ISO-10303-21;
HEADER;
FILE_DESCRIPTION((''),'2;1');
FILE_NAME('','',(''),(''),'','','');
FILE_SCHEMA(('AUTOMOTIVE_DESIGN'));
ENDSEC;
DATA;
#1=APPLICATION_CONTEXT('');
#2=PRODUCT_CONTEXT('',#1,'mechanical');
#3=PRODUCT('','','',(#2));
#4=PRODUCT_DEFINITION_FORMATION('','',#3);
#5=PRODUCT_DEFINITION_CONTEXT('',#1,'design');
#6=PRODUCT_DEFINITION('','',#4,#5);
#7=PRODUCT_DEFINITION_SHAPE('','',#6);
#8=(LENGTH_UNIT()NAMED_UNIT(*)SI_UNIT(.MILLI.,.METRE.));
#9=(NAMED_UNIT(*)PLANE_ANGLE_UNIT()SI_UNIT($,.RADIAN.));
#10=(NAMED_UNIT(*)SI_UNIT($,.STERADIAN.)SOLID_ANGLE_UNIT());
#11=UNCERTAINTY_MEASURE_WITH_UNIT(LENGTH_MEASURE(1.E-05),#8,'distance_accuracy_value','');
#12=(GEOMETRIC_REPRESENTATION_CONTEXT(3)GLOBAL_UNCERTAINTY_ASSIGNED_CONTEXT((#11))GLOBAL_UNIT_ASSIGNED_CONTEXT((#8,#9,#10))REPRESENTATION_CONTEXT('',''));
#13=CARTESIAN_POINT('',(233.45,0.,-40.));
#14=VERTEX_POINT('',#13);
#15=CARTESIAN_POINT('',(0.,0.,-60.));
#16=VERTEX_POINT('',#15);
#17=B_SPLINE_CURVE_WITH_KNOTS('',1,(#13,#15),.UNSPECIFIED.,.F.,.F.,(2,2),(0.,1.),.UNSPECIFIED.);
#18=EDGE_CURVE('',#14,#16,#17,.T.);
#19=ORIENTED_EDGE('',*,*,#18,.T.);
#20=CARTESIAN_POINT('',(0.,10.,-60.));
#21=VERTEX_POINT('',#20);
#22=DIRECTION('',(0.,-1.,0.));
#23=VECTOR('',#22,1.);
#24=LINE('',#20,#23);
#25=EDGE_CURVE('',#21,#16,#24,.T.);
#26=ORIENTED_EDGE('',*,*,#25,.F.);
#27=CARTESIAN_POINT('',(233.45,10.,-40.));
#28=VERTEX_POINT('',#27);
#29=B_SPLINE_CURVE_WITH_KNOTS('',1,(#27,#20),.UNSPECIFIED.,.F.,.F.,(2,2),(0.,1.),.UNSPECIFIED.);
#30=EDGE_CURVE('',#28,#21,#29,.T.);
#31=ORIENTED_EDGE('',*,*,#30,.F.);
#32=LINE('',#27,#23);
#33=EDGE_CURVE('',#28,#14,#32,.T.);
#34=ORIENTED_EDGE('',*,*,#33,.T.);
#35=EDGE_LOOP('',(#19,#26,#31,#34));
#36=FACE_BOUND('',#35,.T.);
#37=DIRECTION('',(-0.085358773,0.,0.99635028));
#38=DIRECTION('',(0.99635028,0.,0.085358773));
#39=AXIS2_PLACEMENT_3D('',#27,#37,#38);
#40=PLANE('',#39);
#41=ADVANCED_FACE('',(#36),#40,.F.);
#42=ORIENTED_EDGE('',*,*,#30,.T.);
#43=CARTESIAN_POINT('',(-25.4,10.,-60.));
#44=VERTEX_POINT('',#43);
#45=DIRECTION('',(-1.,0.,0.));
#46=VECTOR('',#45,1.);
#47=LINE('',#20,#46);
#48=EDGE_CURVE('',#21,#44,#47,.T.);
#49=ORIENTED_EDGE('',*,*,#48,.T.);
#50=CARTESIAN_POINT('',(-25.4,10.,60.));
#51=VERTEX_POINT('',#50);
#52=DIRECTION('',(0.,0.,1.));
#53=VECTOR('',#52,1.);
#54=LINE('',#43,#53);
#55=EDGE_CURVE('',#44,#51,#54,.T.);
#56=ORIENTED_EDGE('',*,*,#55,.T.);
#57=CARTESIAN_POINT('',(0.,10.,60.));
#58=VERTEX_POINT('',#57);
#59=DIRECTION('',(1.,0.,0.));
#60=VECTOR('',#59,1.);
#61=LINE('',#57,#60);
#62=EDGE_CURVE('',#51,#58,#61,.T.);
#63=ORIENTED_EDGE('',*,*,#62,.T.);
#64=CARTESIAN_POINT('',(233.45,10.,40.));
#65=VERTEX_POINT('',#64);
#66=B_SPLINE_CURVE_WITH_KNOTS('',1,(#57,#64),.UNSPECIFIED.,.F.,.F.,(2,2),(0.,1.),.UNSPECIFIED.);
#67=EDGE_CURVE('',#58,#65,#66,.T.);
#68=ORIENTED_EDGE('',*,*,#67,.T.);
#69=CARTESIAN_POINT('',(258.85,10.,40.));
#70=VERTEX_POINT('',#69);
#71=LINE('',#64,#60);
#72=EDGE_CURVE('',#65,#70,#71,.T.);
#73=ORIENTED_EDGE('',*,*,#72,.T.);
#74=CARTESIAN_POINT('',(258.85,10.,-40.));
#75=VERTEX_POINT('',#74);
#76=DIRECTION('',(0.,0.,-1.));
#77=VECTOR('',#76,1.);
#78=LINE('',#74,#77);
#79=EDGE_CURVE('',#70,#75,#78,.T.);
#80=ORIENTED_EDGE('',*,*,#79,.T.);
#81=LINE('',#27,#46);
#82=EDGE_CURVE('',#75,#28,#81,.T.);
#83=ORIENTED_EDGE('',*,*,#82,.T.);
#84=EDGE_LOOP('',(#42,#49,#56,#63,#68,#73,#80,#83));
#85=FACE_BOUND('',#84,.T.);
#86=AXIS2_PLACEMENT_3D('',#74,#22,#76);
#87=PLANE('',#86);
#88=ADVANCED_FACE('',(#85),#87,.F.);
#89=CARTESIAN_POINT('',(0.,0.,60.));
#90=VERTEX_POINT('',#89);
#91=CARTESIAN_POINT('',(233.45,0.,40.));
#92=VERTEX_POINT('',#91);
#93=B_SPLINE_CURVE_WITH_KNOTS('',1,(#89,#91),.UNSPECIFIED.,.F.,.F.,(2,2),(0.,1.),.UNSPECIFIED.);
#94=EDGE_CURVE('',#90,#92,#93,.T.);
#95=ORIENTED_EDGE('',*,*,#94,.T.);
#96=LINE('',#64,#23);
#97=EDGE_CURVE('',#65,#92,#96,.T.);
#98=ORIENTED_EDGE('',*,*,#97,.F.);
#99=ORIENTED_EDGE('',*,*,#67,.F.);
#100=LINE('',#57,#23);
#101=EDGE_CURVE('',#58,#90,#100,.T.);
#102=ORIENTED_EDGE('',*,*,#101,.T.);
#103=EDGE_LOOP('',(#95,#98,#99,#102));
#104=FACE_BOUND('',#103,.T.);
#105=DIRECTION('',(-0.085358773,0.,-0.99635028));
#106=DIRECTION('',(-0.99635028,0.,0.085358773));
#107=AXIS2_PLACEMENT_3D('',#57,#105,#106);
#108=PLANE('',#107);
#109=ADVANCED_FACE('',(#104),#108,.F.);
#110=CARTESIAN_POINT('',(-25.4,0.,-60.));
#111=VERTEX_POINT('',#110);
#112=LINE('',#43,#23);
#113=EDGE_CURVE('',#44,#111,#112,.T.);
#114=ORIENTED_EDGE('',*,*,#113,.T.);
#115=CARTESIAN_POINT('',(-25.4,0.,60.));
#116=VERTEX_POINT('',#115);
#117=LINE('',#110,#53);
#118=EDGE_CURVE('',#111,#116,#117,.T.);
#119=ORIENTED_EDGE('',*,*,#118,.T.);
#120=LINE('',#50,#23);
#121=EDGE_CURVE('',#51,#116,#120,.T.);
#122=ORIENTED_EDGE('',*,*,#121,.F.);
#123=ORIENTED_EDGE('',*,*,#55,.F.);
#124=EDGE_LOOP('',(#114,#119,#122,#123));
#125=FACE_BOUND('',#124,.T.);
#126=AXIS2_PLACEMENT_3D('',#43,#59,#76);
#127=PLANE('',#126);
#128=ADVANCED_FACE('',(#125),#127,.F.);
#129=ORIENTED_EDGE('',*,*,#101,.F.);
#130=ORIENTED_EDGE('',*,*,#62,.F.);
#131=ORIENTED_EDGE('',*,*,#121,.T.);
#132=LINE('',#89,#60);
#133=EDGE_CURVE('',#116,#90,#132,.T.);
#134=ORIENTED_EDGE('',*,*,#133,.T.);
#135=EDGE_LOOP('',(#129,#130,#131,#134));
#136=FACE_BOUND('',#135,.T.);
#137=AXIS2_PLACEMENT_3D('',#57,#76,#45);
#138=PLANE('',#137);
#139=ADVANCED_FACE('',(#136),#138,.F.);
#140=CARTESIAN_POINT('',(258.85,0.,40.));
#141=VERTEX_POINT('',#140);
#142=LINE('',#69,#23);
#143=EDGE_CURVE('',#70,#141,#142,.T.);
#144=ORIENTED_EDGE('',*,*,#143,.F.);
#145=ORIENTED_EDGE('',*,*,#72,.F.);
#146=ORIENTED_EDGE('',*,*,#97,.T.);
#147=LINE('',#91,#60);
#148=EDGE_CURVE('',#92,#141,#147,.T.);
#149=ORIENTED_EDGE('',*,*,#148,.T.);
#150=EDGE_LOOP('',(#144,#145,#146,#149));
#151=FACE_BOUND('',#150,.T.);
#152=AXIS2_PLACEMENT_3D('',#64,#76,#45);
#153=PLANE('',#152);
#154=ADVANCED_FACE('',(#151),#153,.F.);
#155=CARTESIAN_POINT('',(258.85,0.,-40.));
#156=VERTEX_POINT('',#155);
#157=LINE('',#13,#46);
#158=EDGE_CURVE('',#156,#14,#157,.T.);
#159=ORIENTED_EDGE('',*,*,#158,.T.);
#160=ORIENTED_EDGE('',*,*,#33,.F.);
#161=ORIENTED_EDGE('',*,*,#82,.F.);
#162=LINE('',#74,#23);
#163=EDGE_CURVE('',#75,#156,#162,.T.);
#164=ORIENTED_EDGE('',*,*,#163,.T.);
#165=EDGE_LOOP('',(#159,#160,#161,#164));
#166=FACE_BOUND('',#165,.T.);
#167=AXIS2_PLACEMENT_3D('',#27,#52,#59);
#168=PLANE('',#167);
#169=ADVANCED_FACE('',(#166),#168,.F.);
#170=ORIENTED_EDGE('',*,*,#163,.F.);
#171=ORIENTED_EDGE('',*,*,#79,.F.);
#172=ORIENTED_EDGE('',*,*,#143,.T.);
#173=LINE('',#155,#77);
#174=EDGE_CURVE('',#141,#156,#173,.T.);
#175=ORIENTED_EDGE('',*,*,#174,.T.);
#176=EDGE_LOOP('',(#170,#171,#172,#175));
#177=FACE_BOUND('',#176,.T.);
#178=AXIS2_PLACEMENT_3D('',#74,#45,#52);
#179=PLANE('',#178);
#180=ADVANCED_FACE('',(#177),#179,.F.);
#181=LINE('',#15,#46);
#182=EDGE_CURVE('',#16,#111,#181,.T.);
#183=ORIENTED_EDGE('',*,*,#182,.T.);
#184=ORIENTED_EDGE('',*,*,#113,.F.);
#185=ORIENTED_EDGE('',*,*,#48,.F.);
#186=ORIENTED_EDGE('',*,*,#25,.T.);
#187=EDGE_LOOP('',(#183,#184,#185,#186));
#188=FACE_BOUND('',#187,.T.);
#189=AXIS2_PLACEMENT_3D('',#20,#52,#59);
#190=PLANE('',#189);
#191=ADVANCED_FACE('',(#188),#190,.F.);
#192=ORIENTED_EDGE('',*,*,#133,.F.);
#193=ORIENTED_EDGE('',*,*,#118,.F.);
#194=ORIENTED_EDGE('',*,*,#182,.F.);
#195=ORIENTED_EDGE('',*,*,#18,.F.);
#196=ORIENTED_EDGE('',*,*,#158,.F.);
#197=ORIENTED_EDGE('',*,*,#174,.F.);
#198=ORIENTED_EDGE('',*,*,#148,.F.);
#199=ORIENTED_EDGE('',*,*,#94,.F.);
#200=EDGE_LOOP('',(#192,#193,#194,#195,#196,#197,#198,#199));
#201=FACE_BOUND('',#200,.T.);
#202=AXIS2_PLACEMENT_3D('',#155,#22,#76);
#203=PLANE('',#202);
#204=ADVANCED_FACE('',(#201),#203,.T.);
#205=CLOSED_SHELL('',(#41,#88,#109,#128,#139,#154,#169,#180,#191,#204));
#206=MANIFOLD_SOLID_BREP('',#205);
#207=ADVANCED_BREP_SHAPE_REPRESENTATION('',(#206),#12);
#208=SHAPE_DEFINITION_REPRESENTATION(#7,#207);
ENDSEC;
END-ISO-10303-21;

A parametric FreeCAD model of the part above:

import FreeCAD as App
import Part
import Sketcher
from FreeCAD import Vector
Q = App.Units.Quantity


def add_polygon(sketch, points):
    """Adds a closed chain of lines whose ends are joined by coincident constraints."""
    first, n = sketch.GeometryCount, len(points)
    for a, b in zip(points, points[1:] + points[:1]):
        sketch.addGeometry(Part.LineSegment(App.Vector(*a, 0), App.Vector(*b, 0)), False)
    for i in range(n):
        sketch.addConstraint(Sketcher.Constraint("Coincident", first + i, 2, first + (i + 1) % n, 1))

doc = App.newDocument("Part")
params = doc.addObject("Spreadsheet::Sheet", "Params")
for row, (alias, value) in enumerate([
    ("sketch1_height", "120 mm"),
    ("sketch1_height2", "80 mm"),
    ("sketch1_width", "25.4 mm"),
    ("pad1_length", "10 mm"),
], start=1):
    params.set(f"A{row}", alias)
    params.set(f"B{row}", "=" + value)
    params.setAlias(f"B{row}", alias)

body = doc.addObject("PartDesign::Body", "Body")

# Sketch on XZ plane
sketch1 = body.newObject("Sketcher::SketchObject", "Sketch")
sketch1.AttachmentSupport = (doc.getObject("XZ_Plane"), [""])
sketch1.MapMode = "FlatFace"
add_polygon(sketch1, [(259, -40), (233, -40), (0, -60), (-25, -60), (-25, 60), (0, 60), (233, 40), (259, 40)])  # lines 0-7
sketch1.addConstraint(Sketcher.Constraint("Horizontal", 0))
sketch1.addConstraint(Sketcher.Constraint("Horizontal", 2))
sketch1.addConstraint(Sketcher.Constraint("Vertical", 3))
sketch1.addConstraint(Sketcher.Constraint("Horizontal", 4))
sketch1.addConstraint(Sketcher.Constraint("Horizontal", 6))
sketch1.addConstraint(Sketcher.Constraint("Vertical", 7))
sketch1.addConstraint(Sketcher.Constraint("Symmetric", 1, 2, 4, 2, -1, 1))
sketch1.addConstraint(Sketcher.Constraint("Symmetric", 0, 2, 5, 2, -1))
sketch1.addConstraint(Sketcher.Constraint("PointOnObject", 1, 2, -2))
sketch1.addConstraint(Sketcher.Constraint("Equal", 0, 2))
sketch1.addConstraint(Sketcher.Constraint("DistanceY", 3, 1, 3, 2, Q("120 mm")))
sketch1.addConstraint(Sketcher.Constraint("DistanceY", 7, 2, 7, 1, Q("80 mm")))
sketch1.addConstraint(Sketcher.Constraint("DistanceX", 0, 2, 0, 1, Q("25.4 mm")))
sketch1.addConstraint(Sketcher.Constraint("DistanceX", -1, 1, 0, 2, Q("233.45 mm")))
sketch1.setExpression("Constraints[18]", "Params.sketch1_height")
sketch1.setExpression("Constraints[19]", "Params.sketch1_height2")
sketch1.setExpression("Constraints[20]", "Params.sketch1_width")
pad1 = body.newObject("PartDesign::Pad", "Pad")
pad1.Profile = sketch1
pad1.setExpression("Length", "Params.pad1_length")
pad1.Reversed = True

doc.recompute()
